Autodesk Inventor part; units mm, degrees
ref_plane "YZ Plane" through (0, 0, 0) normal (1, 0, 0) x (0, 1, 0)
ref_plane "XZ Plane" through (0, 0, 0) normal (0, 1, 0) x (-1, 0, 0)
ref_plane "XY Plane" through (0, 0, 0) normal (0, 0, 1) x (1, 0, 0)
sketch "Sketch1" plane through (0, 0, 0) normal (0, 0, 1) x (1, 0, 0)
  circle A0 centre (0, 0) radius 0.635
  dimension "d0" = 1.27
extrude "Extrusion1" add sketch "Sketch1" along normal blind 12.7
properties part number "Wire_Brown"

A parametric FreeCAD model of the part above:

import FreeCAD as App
import Part
import Sketcher

V = App.Vector
Q = App.Units.Quantity

doc = App.newDocument("Part")
body = doc.addObject("PartDesign::Body", "Body")

sketch1 = doc.addObject("Sketcher::SketchObject", "Sketch")
body.addObject(sketch1)
sketch1.AttachmentSupport = (doc.XY_Plane, [""])
sketch1.MapMode = "FlatFace"
sketch1.addGeometry(Part.Circle(V(0, 0, 0), V(0, 0, 1), 0.6), False)
sketch1.addConstraint(Sketcher.Constraint("Coincident", 0, 3, -1, 1))
sketch1.addConstraint(Sketcher.Constraint("Diameter", 0, Q("0.05 in")))
pad1 = doc.addObject("PartDesign::Pad", "Pad")
body.addObject(pad1)
pad1.Profile = sketch1
pad1.Length = Q("0.5 in")

doc.recompute()
